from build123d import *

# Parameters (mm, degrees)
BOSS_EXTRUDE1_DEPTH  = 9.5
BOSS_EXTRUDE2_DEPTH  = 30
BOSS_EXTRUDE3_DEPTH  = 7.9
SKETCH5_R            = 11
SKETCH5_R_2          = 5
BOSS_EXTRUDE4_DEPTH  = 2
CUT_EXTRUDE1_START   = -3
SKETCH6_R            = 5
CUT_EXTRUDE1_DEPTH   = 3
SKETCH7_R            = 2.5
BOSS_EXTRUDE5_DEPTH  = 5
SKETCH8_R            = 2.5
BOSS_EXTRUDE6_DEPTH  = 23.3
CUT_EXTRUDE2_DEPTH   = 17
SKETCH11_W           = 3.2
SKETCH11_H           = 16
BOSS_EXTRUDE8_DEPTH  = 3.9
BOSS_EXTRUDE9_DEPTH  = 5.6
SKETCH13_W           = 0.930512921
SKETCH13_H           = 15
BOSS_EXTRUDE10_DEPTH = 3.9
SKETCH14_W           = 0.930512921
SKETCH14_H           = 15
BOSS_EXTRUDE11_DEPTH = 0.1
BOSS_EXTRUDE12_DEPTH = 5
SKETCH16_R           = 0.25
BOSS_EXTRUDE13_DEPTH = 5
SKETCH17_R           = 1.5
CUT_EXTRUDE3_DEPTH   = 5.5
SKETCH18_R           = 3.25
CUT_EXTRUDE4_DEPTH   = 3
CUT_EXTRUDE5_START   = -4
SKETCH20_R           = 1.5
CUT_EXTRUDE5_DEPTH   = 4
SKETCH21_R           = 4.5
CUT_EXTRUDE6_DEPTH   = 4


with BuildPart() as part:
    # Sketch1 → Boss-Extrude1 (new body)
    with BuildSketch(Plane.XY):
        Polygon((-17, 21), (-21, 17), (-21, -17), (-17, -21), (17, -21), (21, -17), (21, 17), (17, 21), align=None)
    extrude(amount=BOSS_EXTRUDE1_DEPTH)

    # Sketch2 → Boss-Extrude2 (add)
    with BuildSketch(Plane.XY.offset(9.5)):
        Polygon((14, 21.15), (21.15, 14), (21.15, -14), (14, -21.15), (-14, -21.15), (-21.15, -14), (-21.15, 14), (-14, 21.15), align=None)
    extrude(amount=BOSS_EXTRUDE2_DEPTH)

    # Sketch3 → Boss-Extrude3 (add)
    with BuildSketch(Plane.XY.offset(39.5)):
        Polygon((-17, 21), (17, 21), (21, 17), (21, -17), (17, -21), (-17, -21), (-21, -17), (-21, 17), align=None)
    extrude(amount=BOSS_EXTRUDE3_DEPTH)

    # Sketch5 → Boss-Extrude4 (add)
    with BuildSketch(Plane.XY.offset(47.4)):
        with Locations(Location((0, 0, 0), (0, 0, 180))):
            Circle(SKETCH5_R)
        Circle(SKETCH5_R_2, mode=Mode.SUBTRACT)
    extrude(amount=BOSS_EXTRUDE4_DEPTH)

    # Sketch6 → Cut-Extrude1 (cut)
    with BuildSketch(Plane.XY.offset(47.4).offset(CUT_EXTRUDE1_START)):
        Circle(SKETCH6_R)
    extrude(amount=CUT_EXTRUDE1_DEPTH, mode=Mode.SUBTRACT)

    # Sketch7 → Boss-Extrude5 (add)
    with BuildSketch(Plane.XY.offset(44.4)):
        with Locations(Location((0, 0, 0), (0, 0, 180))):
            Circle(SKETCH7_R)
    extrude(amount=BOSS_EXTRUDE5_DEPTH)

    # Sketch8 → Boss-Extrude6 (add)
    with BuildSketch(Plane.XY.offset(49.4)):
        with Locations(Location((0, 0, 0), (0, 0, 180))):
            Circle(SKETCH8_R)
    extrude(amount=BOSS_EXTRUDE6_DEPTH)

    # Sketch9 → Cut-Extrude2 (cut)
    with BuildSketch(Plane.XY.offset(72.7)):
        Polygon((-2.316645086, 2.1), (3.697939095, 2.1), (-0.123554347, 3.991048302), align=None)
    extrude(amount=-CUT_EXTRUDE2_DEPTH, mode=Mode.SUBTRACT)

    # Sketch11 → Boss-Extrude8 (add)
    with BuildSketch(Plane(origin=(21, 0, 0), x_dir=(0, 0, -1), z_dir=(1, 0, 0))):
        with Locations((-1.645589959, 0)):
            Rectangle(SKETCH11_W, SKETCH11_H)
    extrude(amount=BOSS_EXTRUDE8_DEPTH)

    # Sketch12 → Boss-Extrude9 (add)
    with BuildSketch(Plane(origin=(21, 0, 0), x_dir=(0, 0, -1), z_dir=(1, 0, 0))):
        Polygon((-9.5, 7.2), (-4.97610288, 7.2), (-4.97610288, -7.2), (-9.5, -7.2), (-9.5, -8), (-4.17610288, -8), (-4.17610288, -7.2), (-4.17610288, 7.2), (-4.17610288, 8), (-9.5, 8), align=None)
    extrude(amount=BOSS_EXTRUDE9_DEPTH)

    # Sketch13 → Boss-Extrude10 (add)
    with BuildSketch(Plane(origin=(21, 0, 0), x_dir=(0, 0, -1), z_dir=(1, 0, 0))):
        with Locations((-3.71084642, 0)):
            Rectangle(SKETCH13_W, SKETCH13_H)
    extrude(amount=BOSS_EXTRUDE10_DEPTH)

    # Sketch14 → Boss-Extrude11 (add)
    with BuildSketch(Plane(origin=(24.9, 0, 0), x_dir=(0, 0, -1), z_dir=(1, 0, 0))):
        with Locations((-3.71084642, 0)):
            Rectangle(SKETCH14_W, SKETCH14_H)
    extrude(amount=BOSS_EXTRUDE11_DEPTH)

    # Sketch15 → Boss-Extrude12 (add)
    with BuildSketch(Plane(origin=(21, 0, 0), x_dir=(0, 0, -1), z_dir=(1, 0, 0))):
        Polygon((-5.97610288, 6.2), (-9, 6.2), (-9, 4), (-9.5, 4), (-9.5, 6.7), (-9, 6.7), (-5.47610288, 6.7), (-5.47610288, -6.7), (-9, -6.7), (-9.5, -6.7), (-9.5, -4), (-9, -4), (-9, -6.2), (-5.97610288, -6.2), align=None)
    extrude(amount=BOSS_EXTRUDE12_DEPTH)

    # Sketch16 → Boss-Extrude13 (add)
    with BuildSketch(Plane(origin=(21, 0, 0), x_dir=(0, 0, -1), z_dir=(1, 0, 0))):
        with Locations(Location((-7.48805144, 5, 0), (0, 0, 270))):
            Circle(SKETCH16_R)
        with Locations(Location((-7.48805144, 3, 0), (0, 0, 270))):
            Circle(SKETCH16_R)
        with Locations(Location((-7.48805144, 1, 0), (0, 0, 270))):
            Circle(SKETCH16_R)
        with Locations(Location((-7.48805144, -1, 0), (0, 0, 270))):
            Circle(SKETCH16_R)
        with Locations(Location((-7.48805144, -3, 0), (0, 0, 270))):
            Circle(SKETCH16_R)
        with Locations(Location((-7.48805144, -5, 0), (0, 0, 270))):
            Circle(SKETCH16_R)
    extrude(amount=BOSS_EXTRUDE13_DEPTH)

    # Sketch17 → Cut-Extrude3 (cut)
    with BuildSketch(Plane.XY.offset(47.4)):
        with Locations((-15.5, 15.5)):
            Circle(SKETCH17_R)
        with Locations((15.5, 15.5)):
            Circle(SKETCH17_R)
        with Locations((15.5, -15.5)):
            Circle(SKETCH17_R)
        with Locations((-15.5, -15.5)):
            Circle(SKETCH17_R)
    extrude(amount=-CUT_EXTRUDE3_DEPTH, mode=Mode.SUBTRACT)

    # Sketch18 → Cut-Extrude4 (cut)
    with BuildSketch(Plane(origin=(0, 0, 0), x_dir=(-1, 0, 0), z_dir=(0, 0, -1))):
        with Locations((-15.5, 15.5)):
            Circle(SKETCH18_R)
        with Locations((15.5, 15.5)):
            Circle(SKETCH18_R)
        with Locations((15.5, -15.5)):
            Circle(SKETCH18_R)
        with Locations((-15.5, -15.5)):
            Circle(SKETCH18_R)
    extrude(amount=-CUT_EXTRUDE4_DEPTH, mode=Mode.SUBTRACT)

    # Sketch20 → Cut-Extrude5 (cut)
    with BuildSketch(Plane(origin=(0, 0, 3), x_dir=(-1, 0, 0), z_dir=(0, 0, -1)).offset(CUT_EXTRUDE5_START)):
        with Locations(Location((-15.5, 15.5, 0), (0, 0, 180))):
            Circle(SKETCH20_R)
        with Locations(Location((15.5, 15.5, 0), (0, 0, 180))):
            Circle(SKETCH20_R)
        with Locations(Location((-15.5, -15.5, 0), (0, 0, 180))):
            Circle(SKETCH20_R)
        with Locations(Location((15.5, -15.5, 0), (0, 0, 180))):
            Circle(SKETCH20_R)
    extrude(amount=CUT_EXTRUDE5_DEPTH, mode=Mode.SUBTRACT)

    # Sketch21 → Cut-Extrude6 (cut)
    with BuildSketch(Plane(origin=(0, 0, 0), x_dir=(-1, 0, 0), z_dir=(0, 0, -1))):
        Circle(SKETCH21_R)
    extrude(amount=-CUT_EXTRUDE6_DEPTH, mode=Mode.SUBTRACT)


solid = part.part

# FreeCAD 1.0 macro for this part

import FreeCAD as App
import Part
import Sketcher
from FreeCAD import Vector

doc = App.newDocument("Part")
body = doc.addObject("PartDesign::Body", "Body")

sketch1 = body.newObject("Sketcher::SketchObject", "Sketch")
sketch1.AttachmentSupport = (doc.getObject("XY_Plane"), [""])
sketch1.MapMode = "FlatFace"
sketch1.addGeometry(Part.LineSegment(Vector(-17, 21, 0), Vector(-21, 17, 0)), False)
sketch1.addGeometry(Part.LineSegment(Vector(-21, 17, 0), Vector(-21, -17, 0)), False)
sketch1.addGeometry(Part.LineSegment(Vector(-21, -17, 0), Vector(-17, -21, 0)), False)
sketch1.addGeometry(Part.LineSegment(Vector(-17, -21, 0), Vector(17, -21, 0)), False)
sketch1.addGeometry(Part.LineSegment(Vector(17, -21, 0), Vector(21, -17, 0)), False)
sketch1.addGeometry(Part.LineSegment(Vector(21, -17, 0), Vector(21, 17, 0)), False)
sketch1.addGeometry(Part.LineSegment(Vector(21, 17, 0), Vector(17, 21, 0)), False)
sketch1.addGeometry(Part.LineSegment(Vector(17, 21, 0), Vector(-17, 21, 0)), False)
sketch1.addConstraint(Sketcher.Constraint("Coincident", 0, 2, 1, 1))
sketch1.addConstraint(Sketcher.Constraint("Coincident", 1, 2, 2, 1))
sketch1.addConstraint(Sketcher.Constraint("Coincident", 2, 2, 3, 1))
sketch1.addConstraint(Sketcher.Constraint("Coincident", 3, 2, 4, 1))
sketch1.addConstraint(Sketcher.Constraint("Coincident", 4, 2, 5, 1))
sketch1.addConstraint(Sketcher.Constraint("Coincident", 5, 2, 6, 1))
sketch1.addConstraint(Sketcher.Constraint("Coincident", 6, 2, 7, 1))
sketch1.addConstraint(Sketcher.Constraint("Coincident", 7, 2, 0, 1))
sketch1.addConstraint(Sketcher.Constraint("Vertical", 1))
sketch1.addConstraint(Sketcher.Constraint("Horizontal", 3))
sketch1.addConstraint(Sketcher.Constraint("Vertical", 5))
sketch1.addConstraint(Sketcher.Constraint("Horizontal", 7))
sketch1.addConstraint(Sketcher.Constraint("Symmetric", 0, 2, 4, 2, -1, 1))
sketch1.addConstraint(Sketcher.Constraint("Symmetric", 2, 2, 6, 2, -1, 1))
sketch1.addConstraint(Sketcher.Constraint("Perpendicular", 0, 2))
sketch1.addConstraint(Sketcher.Constraint("Perpendicular", 2, 4))
sketch1.addConstraint(Sketcher.Constraint("Perpendicular", 4, 6))
sketch1.addConstraint(Sketcher.Constraint("Horizontal", 1, 2, 4, 2))
sketch1.addConstraint(Sketcher.Constraint("Vertical", 3, 2, 6, 2))
sketch1.addConstraint(Sketcher.Constraint("Equal", 7, 1))
sketch1.addConstraint(Sketcher.Constraint("DistanceX", 3, 1, 3, 2, 34.0))
sketch1.addConstraint(Sketcher.Constraint("DistanceX", 0, 2, -1, 1, 21.0))
pad1 = body.newObject("PartDesign::Pad", "Pad")
pad1.Profile = sketch1
pad1.Length = 9.5

sketch2 = body.newObject("Sketcher::SketchObject", "Sketch001")
sketch2.AttachmentSupport = (doc.getObject("XY_Plane"), [""])
sketch2.MapMode = "FlatFace"
sketch2.AttachmentOffset = App.Placement(Vector(0, 0, 9.5), App.Rotation())
sketch2.addGeometry(Part.LineSegment(Vector(21, 14, 0), Vector(14, 21, 0)), False)
sketch2.addGeometry(Part.LineSegment(Vector(14, 21, 0), Vector(-14, 21, 0)), False)
sketch2.addGeometry(Part.LineSegment(Vector(-14, 21, 0), Vector(-21, 14, 0)), False)
sketch2.addGeometry(Part.LineSegment(Vector(-21, 14, 0), Vector(-21, -14, 0)), False)
sketch2.addGeometry(Part.LineSegment(Vector(-21, -14, 0), Vector(-14, -21, 0)), False)
sketch2.addGeometry(Part.LineSegment(Vector(-14, -21, 0), Vector(14, -21, 0)), False)
sketch2.addGeometry(Part.LineSegment(Vector(14, -21, 0), Vector(21, -14, 0)), False)
sketch2.addGeometry(Part.LineSegment(Vector(21, -14, 0), Vector(21, 14, 0)), False)
sketch2.addConstraint(Sketcher.Constraint("Coincident", 0, 2, 1, 1))
sketch2.addConstraint(Sketcher.Constraint("Coincident", 1, 2, 2, 1))
sketch2.addConstraint(Sketcher.Constraint("Coincident", 2, 2, 3, 1))
sketch2.addConstraint(Sketcher.Constraint("Coincident", 3, 2, 4, 1))
sketch2.addConstraint(Sketcher.Constraint("Coincident", 4, 2, 5, 1))
sketch2.addConstraint(Sketcher.Constraint("Coincident", 5, 2, 6, 1))
sketch2.addConstraint(Sketcher.Constraint("Coincident", 6, 2, 7, 1))
sketch2.addConstraint(Sketcher.Constraint("Coincident", 7, 2, 0, 1))
sketch2.addConstraint(Sketcher.Constraint("Horizontal", 1))
sketch2.addConstraint(Sketcher.Constraint("Vertical", 3))
sketch2.addConstraint(Sketcher.Constraint("Horizontal", 5))
sketch2.addConstraint(Sketcher.Constraint("Vertical", 7))
sketch2.addConstraint(Sketcher.Constraint("Symmetric", 0, 2, 4, 2, -1, 1))
sketch2.addConstraint(Sketcher.Constraint("Symmetric", 2, 2, 6, 2, -1, 1))
sketch2.addConstraint(Sketcher.Constraint("Perpendicular", 0, 2))
sketch2.addConstraint(Sketcher.Constraint("Perpendicular", 2, 4))
sketch2.addConstraint(Sketcher.Constraint("Perpendicular", 4, 6))
sketch2.addConstraint(Sketcher.Constraint("Horizontal", 3, 2, 6, 2))
sketch2.addConstraint(Sketcher.Constraint("Vertical", 1, 2, 4, 2))
sketch2.addConstraint(Sketcher.Constraint("Equal", 5, 3))
sketch2.addConstraint(Sketcher.Constraint("DistanceX", 1, 2, 1, 1, 28.0))
sketch2.addConstraint(Sketcher.Constraint("DistanceY", 4, 2, 1, 2, 42.3))
pad2 = body.newObject("PartDesign::Pad", "Pad001")
pad2.Profile = sketch2
pad2.Length = 30

sketch3 = body.newObject("Sketcher::SketchObject", "Sketch002")
sketch3.AttachmentSupport = (doc.getObject("XY_Plane"), [""])
sketch3.MapMode = "FlatFace"
sketch3.AttachmentOffset = App.Placement(Vector(0, 0, 39.5), App.Rotation())
sketch3.addGeometry(Part.LineSegment(Vector(17, 21, 0), Vector(-17, 21, 0)), False)
sketch3.addGeometry(Part.LineSegment(Vector(-17, 21, 0), Vector(-21, 17, 0)), False)
sketch3.addGeometry(Part.LineSegment(Vector(-21, 17, 0), Vector(-21, -17, 0)), False)
sketch3.addGeometry(Part.LineSegment(Vector(-21, -17, 0), Vector(-17, -21, 0)), False)
sketch3.addGeometry(Part.LineSegment(Vector(-17, -21, 0), Vector(17, -21, 0)), False)
sketch3.addGeometry(Part.LineSegment(Vector(17, -21, 0), Vector(21, -17, 0)), False)
sketch3.addGeometry(Part.LineSegment(Vector(21, -17, 0), Vector(21, 17, 0)), False)
sketch3.addGeometry(Part.LineSegment(Vector(21, 17, 0), Vector(17, 21, 0)), False)
sketch3.addConstraint(Sketcher.Constraint("Coincident", 0, 2, 1, 1))
sketch3.addConstraint(Sketcher.Constraint("Coincident", 1, 2, 2, 1))
sketch3.addConstraint(Sketcher.Constraint("Coincident", 2, 2, 3, 1))
sketch3.addConstraint(Sketcher.Constraint("Coincident", 3, 2, 4, 1))
sketch3.addConstraint(Sketcher.Constraint("Coincident", 4, 2, 5, 1))
sketch3.addConstraint(Sketcher.Constraint("Coincident", 5, 2, 6, 1))
sketch3.addConstraint(Sketcher.Constraint("Coincident", 6, 2, 7, 1))
sketch3.addConstraint(Sketcher.Constraint("Coincident", 7, 2, 0, 1))
sketch3.addConstraint(Sketcher.Constraint("Horizontal", 0))
sketch3.addConstraint(Sketcher.Constraint("Vertical", 2))
sketch3.addConstraint(Sketcher.Constraint("Horizontal", 4))
sketch3.addConstraint(Sketcher.Constraint("Vertical", 6))
sketch3.addConstraint(Sketcher.Constraint("Symmetric", 0, 2, 4, 2, -1, 1))
sketch3.addConstraint(Sketcher.Constraint("Symmetric", 1, 2, 5, 2, -1, 1))
sketch3.addConstraint(Sketcher.Constraint("Perpendicular", 1, 3))
sketch3.addConstraint(Sketcher.Constraint("Perpendicular", 5, 7))
sketch3.addConstraint(Sketcher.Constraint("Horizontal", 2, 2, 5, 2))
sketch3.addConstraint(Sketcher.Constraint("Horizontal", 1, 2, 6, 2))
sketch3.addConstraint(Sketcher.Constraint("Vertical", 0, 2, 3, 2))
sketch3.addConstraint(Sketcher.Constraint("Equal", 4, 2))
sketch3.addConstraint(Sketcher.Constraint("DistanceX", 0, 2, 0, 1, 34.0))
sketch3.addConstraint(Sketcher.Constraint("DistanceY", -1, 1, 0, 2, 21.0))
pad3 = body.newObject("PartDesign::Pad", "Pad002")
pad3.Profile = sketch3
pad3.Length = 7.9

sketch4 = body.newObject("Sketcher::SketchObject", "Sketch003")
sketch4.AttachmentSupport = (doc.getObject("XY_Plane"), [""])
sketch4.MapMode = "FlatFace"
sketch4.AttachmentOffset = App.Placement(Vector(0, 0, 47.4), App.Rotation())
sketch4.addGeometry(Part.Circle(Vector(0, 0, 0), Vector(0, 0, 1), 11), False)
sketch4.addGeometry(Part.Circle(Vector(0, 0, 0), Vector(0, 0, 1), 5), False)
sketch4.addConstraint(Sketcher.Constraint("Coincident", 0, 3, -1, 1))
sketch4.addConstraint(Sketcher.Constraint("Coincident", 1, 3, -1, 1))
sketch4.addConstraint(Sketcher.Constraint("Diameter", 0, 22.0))
sketch4.addConstraint(Sketcher.Constraint("Diameter", 1, 10.0))
pad4 = body.newObject("PartDesign::Pad", "Pad003")
pad4.Profile = sketch4
pad4.Length = 2

sketch5 = body.newObject("Sketcher::SketchObject", "Sketch004")
sketch5.AttachmentSupport = (doc.getObject("XY_Plane"), [""])
sketch5.MapMode = "FlatFace"
sketch5.AttachmentOffset = App.Placement(Vector(0, 0, 44.4), App.Rotation())
sketch5.addGeometry(Part.Circle(Vector(0, 0, 0), Vector(0, 0, 1), 5), False)
sketch5.addConstraint(Sketcher.Constraint("Coincident", 0, 3, -1, 1))
sketch5.addConstraint(Sketcher.Constraint("Diameter", 0, 10.0))
pocket1 = body.newObject("PartDesign::Pocket", "Pocket")
pocket1.Profile = sketch5
pocket1.Length = 3
pocket1.Reversed = True

sketch6 = body.newObject("Sketcher::SketchObject", "Sketch005")
sketch6.AttachmentSupport = (doc.getObject("XY_Plane"), [""])
sketch6.MapMode = "FlatFace"
sketch6.AttachmentOffset = App.Placement(Vector(0, 0, 44.4), App.Rotation())
sketch6.addGeometry(Part.Circle(Vector(0, 0, 0), Vector(0, 0, 1), 2.5), False)
sketch6.addConstraint(Sketcher.Constraint("Coincident", 0, 3, -1, 1))
sketch6.addConstraint(Sketcher.Constraint("Diameter", 0, 5.0))
pad5 = body.newObject("PartDesign::Pad", "Pad004")
pad5.Profile = sketch6
pad5.Length = 5

sketch7 = body.newObject("Sketcher::SketchObject", "Sketch006")
sketch7.AttachmentSupport = (doc.getObject("XY_Plane"), [""])
sketch7.MapMode = "FlatFace"
sketch7.AttachmentOffset = App.Placement(Vector(0, 0, 49.4), App.Rotation())
sketch7.addGeometry(Part.Circle(Vector(0, 0, 0), Vector(0, 0, 1), 2.5), False)
sketch7.addConstraint(Sketcher.Constraint("Coincident", 0, 3, -1, 1))
sketch7.addConstraint(Sketcher.Constraint("Diameter", 0, 5.0))
pad6 = body.newObject("PartDesign::Pad", "Pad005")
pad6.Profile = sketch7
pad6.Length = 23.3

sketch8 = body.newObject("Sketcher::SketchObject", "Sketch007")
sketch8.AttachmentSupport = (doc.getObject("XY_Plane"), [""])
sketch8.MapMode = "FlatFace"
sketch8.AttachmentOffset = App.Placement(Vector(0, 0, 72.7), App.Rotation())
sketch8.addGeometry(Part.LineSegment(Vector(-2.3, 2.1, 0), Vector(3.7, 2.1, 0)), False)
sketch8.addGeometry(Part.LineSegment(Vector(3.7, 2.1, 0), Vector(-0.1, 4, 0)), False)
sketch8.addGeometry(Part.LineSegment(Vector(-0.1, 4, 0), Vector(-2.3, 2.1, 0)), False)
sketch8.addConstraint(Sketcher.Constraint("Coincident", 0, 2, 1, 1))
sketch8.addConstraint(Sketcher.Constraint("Coincident", 1, 2, 2, 1))
sketch8.addConstraint(Sketcher.Constraint("Coincident", 2, 2, 0, 1))
sketch8.addConstraint(Sketcher.Constraint("Horizontal", 0))
sketch8.addConstraint(Sketcher.Constraint("DistanceY", -1, 1, 0, 2, 2.1))
sketch8.addConstraint(Sketcher.Constraint("Distance", 2, 2.895809))
sketch8.addConstraint(Sketcher.Constraint("DistanceX", 0, 1, 0, 2, 6.014584))
sketch8.addConstraint(Sketcher.Constraint("DistanceX", -1, 1, 0, 2, 3.697939))
sketch8.addConstraint(Sketcher.Constraint("DistanceY", -1, 1, 1, 2, 3.991048))
pocket2 = body.newObject("PartDesign::Pocket", "Pocket001")
pocket2.Profile = sketch8
pocket2.Length = 17

sketch9 = body.newObject("Sketcher::SketchObject", "Sketch008")
sketch9.AttachmentSupport = (doc.getObject("YZ_Plane"), [""])
sketch9.MapMode = "FlatFace"
sketch9.AttachmentOffset = App.Placement(Vector(0, 0, 21), App.Rotation())
sketch9.addGeometry(Part.LineSegment(Vector(8, 3.2, 0), Vector(-8, 3.2, 0)), False)
sketch9.addGeometry(Part.LineSegment(Vector(-8, 3.2, 0), Vector(-8, 0, 0)), False)
sketch9.addGeometry(Part.LineSegment(Vector(-8, 0, 0), Vector(8, 0, 0)), False)
sketch9.addGeometry(Part.LineSegment(Vector(8, 0, 0), Vector(8, 3.2, 0)), False)
sketch9.addConstraint(Sketcher.Constraint("Coincident", 0, 2, 1, 1))
sketch9.addConstraint(Sketcher.Constraint("Coincident", 1, 2, 2, 1))
sketch9.addConstraint(Sketcher.Constraint("Coincident", 2, 2, 3, 1))
sketch9.addConstraint(Sketcher.Constraint("Coincident", 3, 2, 0, 1))
sketch9.addConstraint(Sketcher.Constraint("Horizontal", 0))
sketch9.addConstraint(Sketcher.Constraint("Vertical", 1))
sketch9.addConstraint(Sketcher.Constraint("Horizontal", 2))
sketch9.addConstraint(Sketcher.Constraint("Vertical", 3))
sketch9.addConstraint(Sketcher.Constraint("DistanceX", 0, 2, 0, 1, 16.0))
sketch9.addConstraint(Sketcher.Constraint("DistanceY", 1, 2, 1, 1, 3.2))
sketch9.addConstraint(Sketcher.Constraint("DistanceX", 0, 2, -1, 1, 8.0))
sketch9.addConstraint(Sketcher.Constraint("DistanceY", -1, 1, 0, 2, 3.24559))
pad7 = body.newObject("PartDesign::Pad", "Pad006")
pad7.Profile = sketch9
pad7.Length = 3.9

sketch10 = body.newObject("Sketcher::SketchObject", "Sketch009")
sketch10.AttachmentSupport = (doc.getObject("YZ_Plane"), [""])
sketch10.MapMode = "FlatFace"
sketch10.AttachmentOffset = App.Placement(Vector(0, 0, 21), App.Rotation())
sketch10.addGeometry(Part.LineSegment(Vector(7.2, 9.5, 0), Vector(7.2, 5, 0)), False)
sketch10.addGeometry(Part.LineSegment(Vector(7.2, 5, 0), Vector(-7.2, 5, 0)), False)
sketch10.addGeometry(Part.LineSegment(Vector(-7.2, 5, 0), Vector(-7.2, 9.5, 0)), False)
sketch10.addGeometry(Part.LineSegment(Vector(-7.2, 9.5, 0), Vector(-8, 9.5, 0)), False)
sketch10.addGeometry(Part.LineSegment(Vector(-8, 9.5, 0), Vector(-8, 4.2, 0)), False)
sketch10.addGeometry(Part.LineSegment(Vector(-8, 4.2, 0), Vector(8, 4.2, 0)), False)
sketch10.addGeometry(Part.LineSegment(Vector(8, 4.2, 0), Vector(8, 9.5, 0)), False)
sketch10.addGeometry(Part.LineSegment(Vector(8, 9.5, 0), Vector(7.2, 9.5, 0)), False)
sketch10.addConstraint(Sketcher.Constraint("Coincident", 0, 2, 1, 1))
sketch10.addConstraint(Sketcher.Constraint("Coincident", 1, 2, 2, 1))
sketch10.addConstraint(Sketcher.Constraint("Coincident", 2, 2, 3, 1))
sketch10.addConstraint(Sketcher.Constraint("Coincident", 3, 2, 4, 1))
sketch10.addConstraint(Sketcher.Constraint("Coincident", 4, 2, 5, 1))
sketch10.addConstraint(Sketcher.Constraint("Coincident", 5, 2, 6, 1))
sketch10.addConstraint(Sketcher.Constraint("Coincident", 6, 2, 7, 1))
sketch10.addConstraint(Sketcher.Constraint("Coincident", 7, 2, 0, 1))
sketch10.addConstraint(Sketcher.Constraint("Vertical", 0))
sketch10.addConstraint(Sketcher.Constraint("Horizontal", 1))
sketch10.addConstraint(Sketcher.Constraint("Vertical", 2))
sketch10.addConstraint(Sketcher.Constraint("Horizontal", 3))
sketch10.addConstraint(Sketcher.Constraint("Vertical", 4))
sketch10.addConstraint(Sketcher.Constraint("Horizontal", 5))
sketch10.addConstraint(Sketcher.Constraint("Vertical", 6))
sketch10.addConstraint(Sketcher.Constraint("Horizontal", 7))
sketch10.addConstraint(Sketcher.Constraint("Symmetric", 3, 2, 6, 2, -2))
sketch10.addConstraint(Sketcher.Constraint("Equal", 3, 7))
sketch10.addConstraint(Sketcher.Constraint("DistanceX", 5, 1, 5, 2, 16.0))
sketch10.addConstraint(Sketcher.Constraint("DistanceX", 1, 2, 1, 1, 14.4))
sketch10.addConstraint(Sketcher.Constraint("DistanceY", -1, 1, 2, 2, 9.5))
sketch10.addConstraint(Sketcher.Constraint("DistanceY", 4, 2, 1, 2, 0.8))
sketch10.addConstraint(Sketcher.Constraint("DistanceY", 0, 2, 0, 1, 4.523897))
pad8 = body.newObject("PartDesign::Pad", "Pad007")
pad8.Profile = sketch10
pad8.Length = 5.6

sketch11 = body.newObject("Sketcher::SketchObject", "Sketch010")
sketch11.AttachmentSupport = (doc.getObject("YZ_Plane"), [""])
sketch11.MapMode = "FlatFace"
sketch11.AttachmentOffset = App.Placement(Vector(0, 0, 21), App.Rotation())
sketch11.addGeometry(Part.LineSegment(Vector(7.5, 4.2, 0), Vector(-7.5, 4.2, 0)), False)
sketch11.addGeometry(Part.LineSegment(Vector(-7.5, 4.2, 0), Vector(-7.5, 3.2, 0)), False)
sketch11.addGeometry(Part.LineSegment(Vector(-7.5, 3.2, 0), Vector(7.5, 3.2, 0)), False)
sketch11.addGeometry(Part.LineSegment(Vector(7.5, 3.2, 0), Vector(7.5, 4.2, 0)), False)
sketch11.addConstraint(Sketcher.Constraint("Coincident", 0, 2, 1, 1))
sketch11.addConstraint(Sketcher.Constraint("Coincident", 1, 2, 2, 1))
sketch11.addConstraint(Sketcher.Constraint("Coincident", 2, 2, 3, 1))
sketch11.addConstraint(Sketcher.Constraint("Coincident", 3, 2, 0, 1))
sketch11.addConstraint(Sketcher.Constraint("Horizontal", 0))
sketch11.addConstraint(Sketcher.Constraint("Vertical", 1))
sketch11.addConstraint(Sketcher.Constraint("Horizontal", 2))
sketch11.addConstraint(Sketcher.Constraint("Vertical", 3))
sketch11.addConstraint(Sketcher.Constraint("DistanceX", 0, 2, 0, 1, 15.0))
sketch11.addConstraint(Sketcher.Constraint("DistanceX", 0, 2, -1, 1, 7.5))
sketch11.addConstraint(Sketcher.Constraint("DistanceY", 1, 2, 1, 1, 0.930513))
sketch11.addConstraint(Sketcher.Constraint("DistanceY", -1, 1, 1, 2, 3.24559))
pad9 = body.newObject("PartDesign::Pad", "Pad008")
pad9.Profile = sketch11
pad9.Length = 3.9

sketch12 = body.newObject("Sketcher::SketchObject", "Sketch011")
sketch12.AttachmentSupport = (doc.getObject("YZ_Plane"), [""])
sketch12.MapMode = "FlatFace"
sketch12.AttachmentOffset = App.Placement(Vector(0, 0, 24.9), App.Rotation())
sketch12.addGeometry(Part.LineSegment(Vector(7.5, 4.2, 0), Vector(-7.5, 4.2, 0)), False)
sketch12.addGeometry(Part.LineSegment(Vector(-7.5, 4.2, 0), Vector(-7.5, 3.2, 0)), False)
sketch12.addGeometry(Part.LineSegment(Vector(-7.5, 3.2, 0), Vector(7.5, 3.2, 0)), False)
sketch12.addGeometry(Part.LineSegment(Vector(7.5, 3.2, 0), Vector(7.5, 4.2, 0)), False)
sketch12.addConstraint(Sketcher.Constraint("Coincident", 0, 2, 1, 1))
sketch12.addConstraint(Sketcher.Constraint("Coincident", 1, 2, 2, 1))
sketch12.addConstraint(Sketcher.Constraint("Coincident", 2, 2, 3, 1))
sketch12.addConstraint(Sketcher.Constraint("Coincident", 3, 2, 0, 1))
sketch12.addConstraint(Sketcher.Constraint("Horizontal", 0))
sketch12.addConstraint(Sketcher.Constraint("Vertical", 1))
sketch12.addConstraint(Sketcher.Constraint("Horizontal", 2))
sketch12.addConstraint(Sketcher.Constraint("Vertical", 3))
sketch12.addConstraint(Sketcher.Constraint("DistanceX", 0, 2, 0, 1, 15.0))
sketch12.addConstraint(Sketcher.Constraint("DistanceX", 0, 2, -1, 1, 7.5))
sketch12.addConstraint(Sketcher.Constraint("DistanceY", 1, 2, 1, 1, 0.930513))
sketch12.addConstraint(Sketcher.Constraint("DistanceY", -1, 1, 1, 2, 3.24559))
pad10 = body.newObject("PartDesign::Pad", "Pad009")
pad10.Profile = sketch12
pad10.Length = 0.1

sketch13 = body.newObject("Sketcher::SketchObject", "Sketch012")
sketch13.AttachmentSupport = (doc.getObject("YZ_Plane"), [""])
sketch13.MapMode = "FlatFace"
sketch13.AttachmentOffset = App.Placement(Vector(0, 0, 21), App.Rotation())
sketch13.addGeometry(Part.LineSegment(Vector(6.2, 9, 0), Vector(6.2, 6, 0)), False)
sketch13.addGeometry(Part.LineSegment(Vector(6.2, 6, 0), Vector(-6.2, 6, 0)), False)
sketch13.addGeometry(Part.LineSegment(Vector(-6.2, 6, 0), Vector(-6.2, 9, 0)), False)
sketch13.addGeometry(Part.LineSegment(Vector(-6.2, 9, 0), Vector(-4, 9, 0)), False)
sketch13.addGeometry(Part.LineSegment(Vector(-4, 9, 0), Vector(-4, 9.5, 0)), False)
sketch13.addGeometry(Part.LineSegment(Vector(-4, 9.5, 0), Vector(-6.7, 9.5, 0)), False)
sketch13.addGeometry(Part.LineSegment(Vector(-6.7, 9.5, 0), Vector(-6.7, 5.5, 0)), False)
sketch13.addGeometry(Part.LineSegment(Vector(-6.7, 5.5, 0), Vector(6.7, 5.5, 0)), False)
sketch13.addGeometry(Part.LineSegment(Vector(6.7, 5.5, 0), Vector(6.7, 9.5, 0)), False)
sketch13.addGeometry(Part.LineSegment(Vector(6.7, 9.5, 0), Vector(4, 9.5, 0)), False)
sketch13.addGeometry(Part.LineSegment(Vector(4, 9.5, 0), Vector(4, 9, 0)), False)
sketch13.addGeometry(Part.LineSegment(Vector(4, 9, 0), Vector(6.2, 9, 0)), False)
sketch13.addConstraint(Sketcher.Constraint("Coincident", 0, 2, 1, 1))
sketch13.addConstraint(Sketcher.Constraint("Coincident", 1, 2, 2, 1))
sketch13.addConstraint(Sketcher.Constraint("Coincident", 2, 2, 3, 1))
sketch13.addConstraint(Sketcher.Constraint("Coincident", 3, 2, 4, 1))
sketch13.addConstraint(Sketcher.Constraint("Coincident", 4, 2, 5, 1))
sketch13.addConstraint(Sketcher.Constraint("Coincident", 5, 2, 6, 1))
sketch13.addConstraint(Sketcher.Constraint("Coincident", 6, 2, 7, 1))
sketch13.addConstraint(Sketcher.Constraint("Coincident", 7, 2, 8, 1))
sketch13.addConstraint(Sketcher.Constraint("Coincident", 8, 2, 9, 1))
sketch13.addConstraint(Sketcher.Constraint("Coincident", 9, 2, 10, 1))
sketch13.addConstraint(Sketcher.Constraint("Coincident", 10, 2, 11, 1))
sketch13.addConstraint(Sketcher.Constraint("Coincident", 11, 2, 0, 1))
sketch13.addConstraint(Sketcher.Constraint("Vertical", 0))
sketch13.addConstraint(Sketcher.Constraint("Horizontal", 1))
sketch13.addConstraint(Sketcher.Constraint("Vertical", 2))
sketch13.addConstraint(Sketcher.Constraint("Horizontal", 3))
sketch13.addConstraint(Sketcher.Constraint("Vertical", 4))
sketch13.addConstraint(Sketcher.Constraint("Horizontal", 5))
sketch13.addConstraint(Sketcher.Constraint("Vertical", 6))
sketch13.addConstraint(Sketcher.Constraint("Horizontal", 7))
sketch13.addConstraint(Sketcher.Constraint("Vertical", 8))
sketch13.addConstraint(Sketcher.Constraint("Horizontal", 9))
sketch13.addConstraint(Sketcher.Constraint("Vertical", 10))
sketch13.addConstraint(Sketcher.Constraint("Horizontal", 11))
sketch13.addConstraint(Sketcher.Constraint("Symmetric", 5, 2, 8, 2, -2))
sketch13.addConstraint(Sketcher.Constraint("Symmetric", 3, 2, 10, 2, -2))
sketch13.addConstraint(Sketcher.Constraint("Equal", 3, 11))
sketch13.addConstraint(Sketcher.Constraint("DistanceX", 1, 2, 1, 1, 12.4))
sketch13.addConstraint(Sketcher.Constraint("DistanceX", 3, 1, 3, 2, 2.2))
sketch13.addConstraint(Sketcher.Constraint("DistanceX", 5, 2, 5, 1, 2.7))
sketch13.addConstraint(Sketcher.Constraint("DistanceY", 4, 1, 4, 2, 0.5))
sketch13.addConstraint(Sketcher.Constraint("DistanceY", -1, 1, 2, 2, 9.0))
sketch13.addConstraint(Sketcher.Constraint("DistanceY", 6, 2, 1, 2, 0.5))
sketch13.addConstraint(Sketcher.Constraint("DistanceY", 0, 2, 0, 1, 3.023897))
pad11 = body.newObject("PartDesign::Pad", "Pad010")
pad11.Profile = sketch13
pad11.Length = 5

sketch14 = body.newObject("Sketcher::SketchObject", "Sketch013")
sketch14.AttachmentSupport = (doc.getObject("YZ_Plane"), [""])
sketch14.MapMode = "FlatFace"
sketch14.AttachmentOffset = App.Placement(Vector(0, 0, 21), App.Rotation())
sketch14.addGeometry(Part.Circle(Vector(5, 7.49, 0), Vector(0, 0, 1), 0.25), False)
sketch14.addGeometry(Part.Circle(Vector(3, 7.49, 0), Vector(0, 0, 1), 0.25), False)
sketch14.addGeometry(Part.Circle(Vector(1, 7.49, 0), Vector(0, 0, 1), 0.25), False)
sketch14.addGeometry(Part.Circle(Vector(-1, 7.49, 0), Vector(0, 0, 1), 0.25), False)
sketch14.addGeometry(Part.Circle(Vector(-3, 7.49, 0), Vector(0, 0, 1), 0.25), False)
sketch14.addGeometry(Part.Circle(Vector(-5, 7.49, 0), Vector(0, 0, 1), 0.25), False)
sketch14.addConstraint(Sketcher.Constraint("Equal", 0, 1))
sketch14.addConstraint(Sketcher.Constraint("Equal", 1, 2))
sketch14.addConstraint(Sketcher.Constraint("Equal", 2, 3))
sketch14.addConstraint(Sketcher.Constraint("Equal", 3, 4))
sketch14.addConstraint(Sketcher.Constraint("Equal", 4, 5))
sketch14.addConstraint(Sketcher.Constraint("Symmetric", 2, 3, 3, 3, -2))
sketch14.addConstraint(Sketcher.Constraint("Symmetric", 1, 3, 4, 3, -2))
sketch14.addConstraint(Sketcher.Constraint("Symmetric", 0, 3, 5, 3, -2))
sketch14.addConstraint(Sketcher.Constraint("Horizontal", 0, 3, 1, 3))
sketch14.addConstraint(Sketcher.Constraint("Horizontal", 1, 3, 2, 3))
sketch14.addConstraint(Sketcher.Constraint("Diameter", 0, 0.5))
sketch14.addConstraint(Sketcher.Constraint("DistanceX", -1, 1, 0, 3, 5.0))
sketch14.addConstraint(Sketcher.Constraint("DistanceX", -1, 1, 1, 3, 3.0))
sketch14.addConstraint(Sketcher.Constraint("DistanceX", -1, 1, 2, 3, 1.0))
sketch14.addConstraint(Sketcher.Constraint("DistanceY", -1, 1, 0, 3, 7.488051))
pad12 = body.newObject("PartDesign::Pad", "Pad011")
pad12.Profile = sketch14
pad12.Length = 5

sketch15 = body.newObject("Sketcher::SketchObject", "Sketch014")
sketch15.AttachmentSupport = (doc.getObject("XY_Plane"), [""])
sketch15.MapMode = "FlatFace"
sketch15.AttachmentOffset = App.Placement(Vector(0, 0, 47.4), App.Rotation())
sketch15.addGeometry(Part.Circle(Vector(-15.5, 15.5, 0), Vector(0, 0, 1), 1.5), False)
sketch15.addGeometry(Part.Circle(Vector(15.5, 15.5, 0), Vector(0, 0, 1), 1.5), False)
sketch15.addGeometry(Part.Circle(Vector(15.5, -15.5, 0), Vector(0, 0, 1), 1.5), False)
sketch15.addGeometry(Part.Circle(Vector(-15.5, -15.5, 0), Vector(0, 0, 1), 1.5), False)
sketch15.addConstraint(Sketcher.Constraint("Equal", 0, 1))
sketch15.addConstraint(Sketcher.Constraint("Equal", 1, 2))
sketch15.addConstraint(Sketcher.Constraint("Equal", 2, 3))
sketch15.addConstraint(Sketcher.Constraint("Symmetric", 0, 3, 2, 3, -1, 1))
sketch15.addConstraint(Sketcher.Constraint("Symmetric", 1, 3, 3, 3, -1, 1))
sketch15.addConstraint(Sketcher.Constraint("Symmetric", 0, 3, 1, 3, -2))
sketch15.addConstraint(Sketcher.Constraint("Diameter", 0, 3.0))
sketch15.addConstraint(Sketcher.Constraint("DistanceX", 0, 3, 1, 3, 31.0))
sketch15.addConstraint(Sketcher.Constraint("DistanceY", 2, 3, 1, 3, 31.0))
pocket3 = body.newObject("PartDesign::Pocket", "Pocket002")
pocket3.Profile = sketch15
pocket3.Length = 5.5

sketch16 = body.newObject("Sketcher::SketchObject", "Sketch015")
sketch16.AttachmentSupport = (doc.getObject("XY_Plane"), [""])
sketch16.MapMode = "FlatFace"
sketch16.addGeometry(Part.Circle(Vector(15.5, 15.5, 0), Vector(0, 0, 1), 3.2), False)
sketch16.addGeometry(Part.Circle(Vector(-15.5, 15.5, 0), Vector(0, 0, 1), 3.2), False)
sketch16.addGeometry(Part.Circle(Vector(-15.5, -15.5, 0), Vector(0, 0, 1), 3.2), False)
sketch16.addGeometry(Part.Circle(Vector(15.5, -15.5, 0), Vector(0, 0, 1), 3.2), False)
sketch16.addConstraint(Sketcher.Constraint("Equal", 0, 1))
sketch16.addConstraint(Sketcher.Constraint("Equal", 1, 2))
sketch16.addConstraint(Sketcher.Constraint("Equal", 2, 3))
sketch16.addConstraint(Sketcher.Constraint("Symmetric", 0, 3, 2, 3, -1, 1))
sketch16.addConstraint(Sketcher.Constraint("Symmetric", 1, 3, 3, 3, -1, 1))
sketch16.addConstraint(Sketcher.Constraint("Symmetric", 0, 3, 1, 3, -2))
sketch16.addConstraint(Sketcher.Constraint("Diameter", 0, 6.5))
sketch16.addConstraint(Sketcher.Constraint("DistanceX", 1, 3, 0, 3, 31.0))
sketch16.addConstraint(Sketcher.Constraint("DistanceY", 2, 3, 1, 3, 31.0))
pocket4 = body.newObject("PartDesign::Pocket", "Pocket003")
pocket4.Profile = sketch16
pocket4.Length = 3
pocket4.Reversed = True

sketch17 = body.newObject("Sketcher::SketchObject", "Sketch016")
sketch17.AttachmentSupport = (doc.getObject("XY_Plane"), [""])
sketch17.MapMode = "FlatFace"
sketch17.AttachmentOffset = App.Placement(Vector(0, 0, 7), App.Rotation())
sketch17.addGeometry(Part.Circle(Vector(15.5, 15.5, 0), Vector(0, 0, 1), 1.5), False)
sketch17.addGeometry(Part.Circle(Vector(-15.5, 15.5, 0), Vector(0, 0, 1), 1.5), False)
sketch17.addGeometry(Part.Circle(Vector(15.5, -15.5, 0), Vector(0, 0, 1), 1.5), False)
sketch17.addGeometry(Part.Circle(Vector(-15.5, -15.5, 0), Vector(0, 0, 1), 1.5), False)
sketch17.addConstraint(Sketcher.Constraint("Equal", 0, 1))
sketch17.addConstraint(Sketcher.Constraint("Equal", 1, 2))
sketch17.addConstraint(Sketcher.Constraint("Equal", 2, 3))
sketch17.addConstraint(Sketcher.Constraint("Symmetric", 1, 3, 2, 3, -1, 1))
sketch17.addConstraint(Sketcher.Constraint("Symmetric", 0, 3, 3, 3, -1, 1))
sketch17.addConstraint(Sketcher.Constraint("Symmetric", 0, 3, 1, 3, -2))
sketch17.addConstraint(Sketcher.Constraint("Diameter", 0, 3.0))
sketch17.addConstraint(Sketcher.Constraint("DistanceX", 1, 3, 0, 3, 31.0))
sketch17.addConstraint(Sketcher.Constraint("DistanceY", 2, 3, 0, 3, 31.0))
pocket5 = body.newObject("PartDesign::Pocket", "Pocket004")
pocket5.Profile = sketch17
pocket5.Length = 4

sketch18 = body.newObject("Sketcher::SketchObject", "Sketch017")
sketch18.AttachmentSupport = (doc.getObject("XY_Plane"), [""])
sketch18.MapMode = "FlatFace"
sketch18.addGeometry(Part.Circle(Vector(0, 0, 0), Vector(0, 0, 1), 4.5), False)
sketch18.addConstraint(Sketcher.Constraint("Coincident", 0, 3, -1, 1))
sketch18.addConstraint(Sketcher.Constraint("Diameter", 0, 9.0))
pocket6 = body.newObject("PartDesign::Pocket", "Pocket005")
pocket6.Profile = sketch18
pocket6.Length = 4
pocket6.Reversed = True

doc.recompute()
